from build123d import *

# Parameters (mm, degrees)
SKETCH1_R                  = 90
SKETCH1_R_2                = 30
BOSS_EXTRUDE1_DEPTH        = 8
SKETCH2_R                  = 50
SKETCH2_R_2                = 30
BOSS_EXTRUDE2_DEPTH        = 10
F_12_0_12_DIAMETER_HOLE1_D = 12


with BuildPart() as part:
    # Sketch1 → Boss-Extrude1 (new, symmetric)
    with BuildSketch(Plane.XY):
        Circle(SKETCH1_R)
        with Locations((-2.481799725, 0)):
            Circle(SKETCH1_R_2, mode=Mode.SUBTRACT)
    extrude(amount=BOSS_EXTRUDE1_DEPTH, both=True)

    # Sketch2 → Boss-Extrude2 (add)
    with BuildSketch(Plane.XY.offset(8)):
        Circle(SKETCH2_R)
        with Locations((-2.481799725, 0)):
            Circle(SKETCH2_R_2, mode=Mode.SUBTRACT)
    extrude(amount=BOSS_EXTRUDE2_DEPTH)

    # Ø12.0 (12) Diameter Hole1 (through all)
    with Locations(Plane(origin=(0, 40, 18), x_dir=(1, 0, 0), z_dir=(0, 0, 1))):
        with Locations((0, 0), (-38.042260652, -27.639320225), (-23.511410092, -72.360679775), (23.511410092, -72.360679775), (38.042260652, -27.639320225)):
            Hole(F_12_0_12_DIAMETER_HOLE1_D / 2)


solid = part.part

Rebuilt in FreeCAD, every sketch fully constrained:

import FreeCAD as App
import Part
import Sketcher
from FreeCAD import Vector

doc = App.newDocument("Part")
body = doc.addObject("PartDesign::Body", "Body")

sketch1 = doc.addObject("Sketcher::SketchObject", "Sketch")
body.addObject(sketch1)
sketch1.AttachmentSupport = (doc.XY_Plane, [""])
sketch1.MapMode = "FlatFace"
sketch1.addGeometry([
    Part.Circle(Vector(0, 0, 0), Vector(0, 0, 1), 90),
    Part.Circle(Vector(-2.4818, 0, 0), Vector(0, 0, 1), 30),
], False)
sketch1.addConstraint([
    Sketcher.Constraint("Coincident", 0, 3, -1, 1),
    Sketcher.Constraint("PointOnObject", 1, 3, -1),
    Sketcher.Constraint("Diameter", 0, 180.0),
    Sketcher.Constraint("Diameter", 1, 60.0),
    Sketcher.Constraint("DistanceX", 1, 3, -1, 1, 2.4818),
])
pad1 = doc.addObject("PartDesign::Pad", "Pad")
body.addObject(pad1)
pad1.Profile = sketch1
pad1.Length = 16
pad1.Midplane = True

sketch2 = doc.addObject("Sketcher::SketchObject", "Sketch001")
body.addObject(sketch2)
sketch2.AttachmentSupport = (doc.XY_Plane, [""])
sketch2.MapMode = "FlatFace"
sketch2.AttachmentOffset = App.Placement(Vector(0, 0, 8), App.Rotation())
sketch2.addGeometry([
    Part.Circle(Vector(0, 0, 0), Vector(0, 0, 1), 50),
    Part.Circle(Vector(-2.4818, 0, 0), Vector(0, 0, 1), 30),
], False)
sketch2.addConstraint([
    Sketcher.Constraint("Coincident", 0, 3, -1, 1),
    Sketcher.Constraint("PointOnObject", 1, 3, -1),
    Sketcher.Constraint("Diameter", 0, 100.0),
    Sketcher.Constraint("Diameter", 1, 60.0),
    Sketcher.Constraint("DistanceX", 1, 3, -1, 1, 2.4818),
])
pad2 = doc.addObject("PartDesign::Pad", "Pad001")
body.addObject(pad2)
pad2.Profile = sketch2
pad2.Length = 10

sketch3 = doc.addObject("Sketcher::SketchObject", "Sketch002")
body.addObject(sketch3)
sketch3.AttachmentSupport = (doc.XY_Plane, [""])
sketch3.MapMode = "FlatFace"
sketch3.AttachmentOffset = App.Placement(Vector(0, 0, 18), App.Rotation())
sketch3.addGeometry([
    Part.Circle(Vector(0, 40, 0), Vector(0, 0, 1), 6),
    Part.Circle(Vector(-38.042261, 12.36068, 0), Vector(0, 0, 1), 6),
    Part.Circle(Vector(-23.51141, -32.36068, 0), Vector(0, 0, 1), 6),
    Part.Circle(Vector(23.51141, -32.36068, 0), Vector(0, 0, 1), 6),
    Part.Circle(Vector(38.042261, 12.36068, 0), Vector(0, 0, 1), 6),
], False)
sketch3.addConstraint([
    Sketcher.Constraint("Equal", 0, 1),
    Sketcher.Constraint("Equal", 1, 2),
    Sketcher.Constraint("Equal", 2, 3),
    Sketcher.Constraint("Equal", 3, 4),
    Sketcher.Constraint("Symmetric", 2, 3, 3, 3, -2),
    Sketcher.Constraint("Symmetric", 1, 3, 4, 3, -2),
    Sketcher.Constraint("PointOnObject", 0, 3, -2),
    Sketcher.Constraint("Diameter", 0, 12.0),
    Sketcher.Constraint("DistanceY", -1, 1, 0, 3, 40.0),
    Sketcher.Constraint("DistanceX", 1, 3, -1, 1, 38.042261),
    Sketcher.Constraint("DistanceY", -1, 1, 1, 3, 12.36068),
    Sketcher.Constraint("DistanceX", 2, 3, -1, 1, 23.51141),
    Sketcher.Constraint("DistanceY", 2, 3, -1, 1, 32.36068),
])
doc.recompute()
hole = doc.addObject("PartDesign::Hole", "Hole")
body.addObject(hole)
hole.Profile = sketch3
hole.ThreadType = "None"
hole.Diameter = 12
hole.DepthType = "ThroughAll"

doc.recompute()
